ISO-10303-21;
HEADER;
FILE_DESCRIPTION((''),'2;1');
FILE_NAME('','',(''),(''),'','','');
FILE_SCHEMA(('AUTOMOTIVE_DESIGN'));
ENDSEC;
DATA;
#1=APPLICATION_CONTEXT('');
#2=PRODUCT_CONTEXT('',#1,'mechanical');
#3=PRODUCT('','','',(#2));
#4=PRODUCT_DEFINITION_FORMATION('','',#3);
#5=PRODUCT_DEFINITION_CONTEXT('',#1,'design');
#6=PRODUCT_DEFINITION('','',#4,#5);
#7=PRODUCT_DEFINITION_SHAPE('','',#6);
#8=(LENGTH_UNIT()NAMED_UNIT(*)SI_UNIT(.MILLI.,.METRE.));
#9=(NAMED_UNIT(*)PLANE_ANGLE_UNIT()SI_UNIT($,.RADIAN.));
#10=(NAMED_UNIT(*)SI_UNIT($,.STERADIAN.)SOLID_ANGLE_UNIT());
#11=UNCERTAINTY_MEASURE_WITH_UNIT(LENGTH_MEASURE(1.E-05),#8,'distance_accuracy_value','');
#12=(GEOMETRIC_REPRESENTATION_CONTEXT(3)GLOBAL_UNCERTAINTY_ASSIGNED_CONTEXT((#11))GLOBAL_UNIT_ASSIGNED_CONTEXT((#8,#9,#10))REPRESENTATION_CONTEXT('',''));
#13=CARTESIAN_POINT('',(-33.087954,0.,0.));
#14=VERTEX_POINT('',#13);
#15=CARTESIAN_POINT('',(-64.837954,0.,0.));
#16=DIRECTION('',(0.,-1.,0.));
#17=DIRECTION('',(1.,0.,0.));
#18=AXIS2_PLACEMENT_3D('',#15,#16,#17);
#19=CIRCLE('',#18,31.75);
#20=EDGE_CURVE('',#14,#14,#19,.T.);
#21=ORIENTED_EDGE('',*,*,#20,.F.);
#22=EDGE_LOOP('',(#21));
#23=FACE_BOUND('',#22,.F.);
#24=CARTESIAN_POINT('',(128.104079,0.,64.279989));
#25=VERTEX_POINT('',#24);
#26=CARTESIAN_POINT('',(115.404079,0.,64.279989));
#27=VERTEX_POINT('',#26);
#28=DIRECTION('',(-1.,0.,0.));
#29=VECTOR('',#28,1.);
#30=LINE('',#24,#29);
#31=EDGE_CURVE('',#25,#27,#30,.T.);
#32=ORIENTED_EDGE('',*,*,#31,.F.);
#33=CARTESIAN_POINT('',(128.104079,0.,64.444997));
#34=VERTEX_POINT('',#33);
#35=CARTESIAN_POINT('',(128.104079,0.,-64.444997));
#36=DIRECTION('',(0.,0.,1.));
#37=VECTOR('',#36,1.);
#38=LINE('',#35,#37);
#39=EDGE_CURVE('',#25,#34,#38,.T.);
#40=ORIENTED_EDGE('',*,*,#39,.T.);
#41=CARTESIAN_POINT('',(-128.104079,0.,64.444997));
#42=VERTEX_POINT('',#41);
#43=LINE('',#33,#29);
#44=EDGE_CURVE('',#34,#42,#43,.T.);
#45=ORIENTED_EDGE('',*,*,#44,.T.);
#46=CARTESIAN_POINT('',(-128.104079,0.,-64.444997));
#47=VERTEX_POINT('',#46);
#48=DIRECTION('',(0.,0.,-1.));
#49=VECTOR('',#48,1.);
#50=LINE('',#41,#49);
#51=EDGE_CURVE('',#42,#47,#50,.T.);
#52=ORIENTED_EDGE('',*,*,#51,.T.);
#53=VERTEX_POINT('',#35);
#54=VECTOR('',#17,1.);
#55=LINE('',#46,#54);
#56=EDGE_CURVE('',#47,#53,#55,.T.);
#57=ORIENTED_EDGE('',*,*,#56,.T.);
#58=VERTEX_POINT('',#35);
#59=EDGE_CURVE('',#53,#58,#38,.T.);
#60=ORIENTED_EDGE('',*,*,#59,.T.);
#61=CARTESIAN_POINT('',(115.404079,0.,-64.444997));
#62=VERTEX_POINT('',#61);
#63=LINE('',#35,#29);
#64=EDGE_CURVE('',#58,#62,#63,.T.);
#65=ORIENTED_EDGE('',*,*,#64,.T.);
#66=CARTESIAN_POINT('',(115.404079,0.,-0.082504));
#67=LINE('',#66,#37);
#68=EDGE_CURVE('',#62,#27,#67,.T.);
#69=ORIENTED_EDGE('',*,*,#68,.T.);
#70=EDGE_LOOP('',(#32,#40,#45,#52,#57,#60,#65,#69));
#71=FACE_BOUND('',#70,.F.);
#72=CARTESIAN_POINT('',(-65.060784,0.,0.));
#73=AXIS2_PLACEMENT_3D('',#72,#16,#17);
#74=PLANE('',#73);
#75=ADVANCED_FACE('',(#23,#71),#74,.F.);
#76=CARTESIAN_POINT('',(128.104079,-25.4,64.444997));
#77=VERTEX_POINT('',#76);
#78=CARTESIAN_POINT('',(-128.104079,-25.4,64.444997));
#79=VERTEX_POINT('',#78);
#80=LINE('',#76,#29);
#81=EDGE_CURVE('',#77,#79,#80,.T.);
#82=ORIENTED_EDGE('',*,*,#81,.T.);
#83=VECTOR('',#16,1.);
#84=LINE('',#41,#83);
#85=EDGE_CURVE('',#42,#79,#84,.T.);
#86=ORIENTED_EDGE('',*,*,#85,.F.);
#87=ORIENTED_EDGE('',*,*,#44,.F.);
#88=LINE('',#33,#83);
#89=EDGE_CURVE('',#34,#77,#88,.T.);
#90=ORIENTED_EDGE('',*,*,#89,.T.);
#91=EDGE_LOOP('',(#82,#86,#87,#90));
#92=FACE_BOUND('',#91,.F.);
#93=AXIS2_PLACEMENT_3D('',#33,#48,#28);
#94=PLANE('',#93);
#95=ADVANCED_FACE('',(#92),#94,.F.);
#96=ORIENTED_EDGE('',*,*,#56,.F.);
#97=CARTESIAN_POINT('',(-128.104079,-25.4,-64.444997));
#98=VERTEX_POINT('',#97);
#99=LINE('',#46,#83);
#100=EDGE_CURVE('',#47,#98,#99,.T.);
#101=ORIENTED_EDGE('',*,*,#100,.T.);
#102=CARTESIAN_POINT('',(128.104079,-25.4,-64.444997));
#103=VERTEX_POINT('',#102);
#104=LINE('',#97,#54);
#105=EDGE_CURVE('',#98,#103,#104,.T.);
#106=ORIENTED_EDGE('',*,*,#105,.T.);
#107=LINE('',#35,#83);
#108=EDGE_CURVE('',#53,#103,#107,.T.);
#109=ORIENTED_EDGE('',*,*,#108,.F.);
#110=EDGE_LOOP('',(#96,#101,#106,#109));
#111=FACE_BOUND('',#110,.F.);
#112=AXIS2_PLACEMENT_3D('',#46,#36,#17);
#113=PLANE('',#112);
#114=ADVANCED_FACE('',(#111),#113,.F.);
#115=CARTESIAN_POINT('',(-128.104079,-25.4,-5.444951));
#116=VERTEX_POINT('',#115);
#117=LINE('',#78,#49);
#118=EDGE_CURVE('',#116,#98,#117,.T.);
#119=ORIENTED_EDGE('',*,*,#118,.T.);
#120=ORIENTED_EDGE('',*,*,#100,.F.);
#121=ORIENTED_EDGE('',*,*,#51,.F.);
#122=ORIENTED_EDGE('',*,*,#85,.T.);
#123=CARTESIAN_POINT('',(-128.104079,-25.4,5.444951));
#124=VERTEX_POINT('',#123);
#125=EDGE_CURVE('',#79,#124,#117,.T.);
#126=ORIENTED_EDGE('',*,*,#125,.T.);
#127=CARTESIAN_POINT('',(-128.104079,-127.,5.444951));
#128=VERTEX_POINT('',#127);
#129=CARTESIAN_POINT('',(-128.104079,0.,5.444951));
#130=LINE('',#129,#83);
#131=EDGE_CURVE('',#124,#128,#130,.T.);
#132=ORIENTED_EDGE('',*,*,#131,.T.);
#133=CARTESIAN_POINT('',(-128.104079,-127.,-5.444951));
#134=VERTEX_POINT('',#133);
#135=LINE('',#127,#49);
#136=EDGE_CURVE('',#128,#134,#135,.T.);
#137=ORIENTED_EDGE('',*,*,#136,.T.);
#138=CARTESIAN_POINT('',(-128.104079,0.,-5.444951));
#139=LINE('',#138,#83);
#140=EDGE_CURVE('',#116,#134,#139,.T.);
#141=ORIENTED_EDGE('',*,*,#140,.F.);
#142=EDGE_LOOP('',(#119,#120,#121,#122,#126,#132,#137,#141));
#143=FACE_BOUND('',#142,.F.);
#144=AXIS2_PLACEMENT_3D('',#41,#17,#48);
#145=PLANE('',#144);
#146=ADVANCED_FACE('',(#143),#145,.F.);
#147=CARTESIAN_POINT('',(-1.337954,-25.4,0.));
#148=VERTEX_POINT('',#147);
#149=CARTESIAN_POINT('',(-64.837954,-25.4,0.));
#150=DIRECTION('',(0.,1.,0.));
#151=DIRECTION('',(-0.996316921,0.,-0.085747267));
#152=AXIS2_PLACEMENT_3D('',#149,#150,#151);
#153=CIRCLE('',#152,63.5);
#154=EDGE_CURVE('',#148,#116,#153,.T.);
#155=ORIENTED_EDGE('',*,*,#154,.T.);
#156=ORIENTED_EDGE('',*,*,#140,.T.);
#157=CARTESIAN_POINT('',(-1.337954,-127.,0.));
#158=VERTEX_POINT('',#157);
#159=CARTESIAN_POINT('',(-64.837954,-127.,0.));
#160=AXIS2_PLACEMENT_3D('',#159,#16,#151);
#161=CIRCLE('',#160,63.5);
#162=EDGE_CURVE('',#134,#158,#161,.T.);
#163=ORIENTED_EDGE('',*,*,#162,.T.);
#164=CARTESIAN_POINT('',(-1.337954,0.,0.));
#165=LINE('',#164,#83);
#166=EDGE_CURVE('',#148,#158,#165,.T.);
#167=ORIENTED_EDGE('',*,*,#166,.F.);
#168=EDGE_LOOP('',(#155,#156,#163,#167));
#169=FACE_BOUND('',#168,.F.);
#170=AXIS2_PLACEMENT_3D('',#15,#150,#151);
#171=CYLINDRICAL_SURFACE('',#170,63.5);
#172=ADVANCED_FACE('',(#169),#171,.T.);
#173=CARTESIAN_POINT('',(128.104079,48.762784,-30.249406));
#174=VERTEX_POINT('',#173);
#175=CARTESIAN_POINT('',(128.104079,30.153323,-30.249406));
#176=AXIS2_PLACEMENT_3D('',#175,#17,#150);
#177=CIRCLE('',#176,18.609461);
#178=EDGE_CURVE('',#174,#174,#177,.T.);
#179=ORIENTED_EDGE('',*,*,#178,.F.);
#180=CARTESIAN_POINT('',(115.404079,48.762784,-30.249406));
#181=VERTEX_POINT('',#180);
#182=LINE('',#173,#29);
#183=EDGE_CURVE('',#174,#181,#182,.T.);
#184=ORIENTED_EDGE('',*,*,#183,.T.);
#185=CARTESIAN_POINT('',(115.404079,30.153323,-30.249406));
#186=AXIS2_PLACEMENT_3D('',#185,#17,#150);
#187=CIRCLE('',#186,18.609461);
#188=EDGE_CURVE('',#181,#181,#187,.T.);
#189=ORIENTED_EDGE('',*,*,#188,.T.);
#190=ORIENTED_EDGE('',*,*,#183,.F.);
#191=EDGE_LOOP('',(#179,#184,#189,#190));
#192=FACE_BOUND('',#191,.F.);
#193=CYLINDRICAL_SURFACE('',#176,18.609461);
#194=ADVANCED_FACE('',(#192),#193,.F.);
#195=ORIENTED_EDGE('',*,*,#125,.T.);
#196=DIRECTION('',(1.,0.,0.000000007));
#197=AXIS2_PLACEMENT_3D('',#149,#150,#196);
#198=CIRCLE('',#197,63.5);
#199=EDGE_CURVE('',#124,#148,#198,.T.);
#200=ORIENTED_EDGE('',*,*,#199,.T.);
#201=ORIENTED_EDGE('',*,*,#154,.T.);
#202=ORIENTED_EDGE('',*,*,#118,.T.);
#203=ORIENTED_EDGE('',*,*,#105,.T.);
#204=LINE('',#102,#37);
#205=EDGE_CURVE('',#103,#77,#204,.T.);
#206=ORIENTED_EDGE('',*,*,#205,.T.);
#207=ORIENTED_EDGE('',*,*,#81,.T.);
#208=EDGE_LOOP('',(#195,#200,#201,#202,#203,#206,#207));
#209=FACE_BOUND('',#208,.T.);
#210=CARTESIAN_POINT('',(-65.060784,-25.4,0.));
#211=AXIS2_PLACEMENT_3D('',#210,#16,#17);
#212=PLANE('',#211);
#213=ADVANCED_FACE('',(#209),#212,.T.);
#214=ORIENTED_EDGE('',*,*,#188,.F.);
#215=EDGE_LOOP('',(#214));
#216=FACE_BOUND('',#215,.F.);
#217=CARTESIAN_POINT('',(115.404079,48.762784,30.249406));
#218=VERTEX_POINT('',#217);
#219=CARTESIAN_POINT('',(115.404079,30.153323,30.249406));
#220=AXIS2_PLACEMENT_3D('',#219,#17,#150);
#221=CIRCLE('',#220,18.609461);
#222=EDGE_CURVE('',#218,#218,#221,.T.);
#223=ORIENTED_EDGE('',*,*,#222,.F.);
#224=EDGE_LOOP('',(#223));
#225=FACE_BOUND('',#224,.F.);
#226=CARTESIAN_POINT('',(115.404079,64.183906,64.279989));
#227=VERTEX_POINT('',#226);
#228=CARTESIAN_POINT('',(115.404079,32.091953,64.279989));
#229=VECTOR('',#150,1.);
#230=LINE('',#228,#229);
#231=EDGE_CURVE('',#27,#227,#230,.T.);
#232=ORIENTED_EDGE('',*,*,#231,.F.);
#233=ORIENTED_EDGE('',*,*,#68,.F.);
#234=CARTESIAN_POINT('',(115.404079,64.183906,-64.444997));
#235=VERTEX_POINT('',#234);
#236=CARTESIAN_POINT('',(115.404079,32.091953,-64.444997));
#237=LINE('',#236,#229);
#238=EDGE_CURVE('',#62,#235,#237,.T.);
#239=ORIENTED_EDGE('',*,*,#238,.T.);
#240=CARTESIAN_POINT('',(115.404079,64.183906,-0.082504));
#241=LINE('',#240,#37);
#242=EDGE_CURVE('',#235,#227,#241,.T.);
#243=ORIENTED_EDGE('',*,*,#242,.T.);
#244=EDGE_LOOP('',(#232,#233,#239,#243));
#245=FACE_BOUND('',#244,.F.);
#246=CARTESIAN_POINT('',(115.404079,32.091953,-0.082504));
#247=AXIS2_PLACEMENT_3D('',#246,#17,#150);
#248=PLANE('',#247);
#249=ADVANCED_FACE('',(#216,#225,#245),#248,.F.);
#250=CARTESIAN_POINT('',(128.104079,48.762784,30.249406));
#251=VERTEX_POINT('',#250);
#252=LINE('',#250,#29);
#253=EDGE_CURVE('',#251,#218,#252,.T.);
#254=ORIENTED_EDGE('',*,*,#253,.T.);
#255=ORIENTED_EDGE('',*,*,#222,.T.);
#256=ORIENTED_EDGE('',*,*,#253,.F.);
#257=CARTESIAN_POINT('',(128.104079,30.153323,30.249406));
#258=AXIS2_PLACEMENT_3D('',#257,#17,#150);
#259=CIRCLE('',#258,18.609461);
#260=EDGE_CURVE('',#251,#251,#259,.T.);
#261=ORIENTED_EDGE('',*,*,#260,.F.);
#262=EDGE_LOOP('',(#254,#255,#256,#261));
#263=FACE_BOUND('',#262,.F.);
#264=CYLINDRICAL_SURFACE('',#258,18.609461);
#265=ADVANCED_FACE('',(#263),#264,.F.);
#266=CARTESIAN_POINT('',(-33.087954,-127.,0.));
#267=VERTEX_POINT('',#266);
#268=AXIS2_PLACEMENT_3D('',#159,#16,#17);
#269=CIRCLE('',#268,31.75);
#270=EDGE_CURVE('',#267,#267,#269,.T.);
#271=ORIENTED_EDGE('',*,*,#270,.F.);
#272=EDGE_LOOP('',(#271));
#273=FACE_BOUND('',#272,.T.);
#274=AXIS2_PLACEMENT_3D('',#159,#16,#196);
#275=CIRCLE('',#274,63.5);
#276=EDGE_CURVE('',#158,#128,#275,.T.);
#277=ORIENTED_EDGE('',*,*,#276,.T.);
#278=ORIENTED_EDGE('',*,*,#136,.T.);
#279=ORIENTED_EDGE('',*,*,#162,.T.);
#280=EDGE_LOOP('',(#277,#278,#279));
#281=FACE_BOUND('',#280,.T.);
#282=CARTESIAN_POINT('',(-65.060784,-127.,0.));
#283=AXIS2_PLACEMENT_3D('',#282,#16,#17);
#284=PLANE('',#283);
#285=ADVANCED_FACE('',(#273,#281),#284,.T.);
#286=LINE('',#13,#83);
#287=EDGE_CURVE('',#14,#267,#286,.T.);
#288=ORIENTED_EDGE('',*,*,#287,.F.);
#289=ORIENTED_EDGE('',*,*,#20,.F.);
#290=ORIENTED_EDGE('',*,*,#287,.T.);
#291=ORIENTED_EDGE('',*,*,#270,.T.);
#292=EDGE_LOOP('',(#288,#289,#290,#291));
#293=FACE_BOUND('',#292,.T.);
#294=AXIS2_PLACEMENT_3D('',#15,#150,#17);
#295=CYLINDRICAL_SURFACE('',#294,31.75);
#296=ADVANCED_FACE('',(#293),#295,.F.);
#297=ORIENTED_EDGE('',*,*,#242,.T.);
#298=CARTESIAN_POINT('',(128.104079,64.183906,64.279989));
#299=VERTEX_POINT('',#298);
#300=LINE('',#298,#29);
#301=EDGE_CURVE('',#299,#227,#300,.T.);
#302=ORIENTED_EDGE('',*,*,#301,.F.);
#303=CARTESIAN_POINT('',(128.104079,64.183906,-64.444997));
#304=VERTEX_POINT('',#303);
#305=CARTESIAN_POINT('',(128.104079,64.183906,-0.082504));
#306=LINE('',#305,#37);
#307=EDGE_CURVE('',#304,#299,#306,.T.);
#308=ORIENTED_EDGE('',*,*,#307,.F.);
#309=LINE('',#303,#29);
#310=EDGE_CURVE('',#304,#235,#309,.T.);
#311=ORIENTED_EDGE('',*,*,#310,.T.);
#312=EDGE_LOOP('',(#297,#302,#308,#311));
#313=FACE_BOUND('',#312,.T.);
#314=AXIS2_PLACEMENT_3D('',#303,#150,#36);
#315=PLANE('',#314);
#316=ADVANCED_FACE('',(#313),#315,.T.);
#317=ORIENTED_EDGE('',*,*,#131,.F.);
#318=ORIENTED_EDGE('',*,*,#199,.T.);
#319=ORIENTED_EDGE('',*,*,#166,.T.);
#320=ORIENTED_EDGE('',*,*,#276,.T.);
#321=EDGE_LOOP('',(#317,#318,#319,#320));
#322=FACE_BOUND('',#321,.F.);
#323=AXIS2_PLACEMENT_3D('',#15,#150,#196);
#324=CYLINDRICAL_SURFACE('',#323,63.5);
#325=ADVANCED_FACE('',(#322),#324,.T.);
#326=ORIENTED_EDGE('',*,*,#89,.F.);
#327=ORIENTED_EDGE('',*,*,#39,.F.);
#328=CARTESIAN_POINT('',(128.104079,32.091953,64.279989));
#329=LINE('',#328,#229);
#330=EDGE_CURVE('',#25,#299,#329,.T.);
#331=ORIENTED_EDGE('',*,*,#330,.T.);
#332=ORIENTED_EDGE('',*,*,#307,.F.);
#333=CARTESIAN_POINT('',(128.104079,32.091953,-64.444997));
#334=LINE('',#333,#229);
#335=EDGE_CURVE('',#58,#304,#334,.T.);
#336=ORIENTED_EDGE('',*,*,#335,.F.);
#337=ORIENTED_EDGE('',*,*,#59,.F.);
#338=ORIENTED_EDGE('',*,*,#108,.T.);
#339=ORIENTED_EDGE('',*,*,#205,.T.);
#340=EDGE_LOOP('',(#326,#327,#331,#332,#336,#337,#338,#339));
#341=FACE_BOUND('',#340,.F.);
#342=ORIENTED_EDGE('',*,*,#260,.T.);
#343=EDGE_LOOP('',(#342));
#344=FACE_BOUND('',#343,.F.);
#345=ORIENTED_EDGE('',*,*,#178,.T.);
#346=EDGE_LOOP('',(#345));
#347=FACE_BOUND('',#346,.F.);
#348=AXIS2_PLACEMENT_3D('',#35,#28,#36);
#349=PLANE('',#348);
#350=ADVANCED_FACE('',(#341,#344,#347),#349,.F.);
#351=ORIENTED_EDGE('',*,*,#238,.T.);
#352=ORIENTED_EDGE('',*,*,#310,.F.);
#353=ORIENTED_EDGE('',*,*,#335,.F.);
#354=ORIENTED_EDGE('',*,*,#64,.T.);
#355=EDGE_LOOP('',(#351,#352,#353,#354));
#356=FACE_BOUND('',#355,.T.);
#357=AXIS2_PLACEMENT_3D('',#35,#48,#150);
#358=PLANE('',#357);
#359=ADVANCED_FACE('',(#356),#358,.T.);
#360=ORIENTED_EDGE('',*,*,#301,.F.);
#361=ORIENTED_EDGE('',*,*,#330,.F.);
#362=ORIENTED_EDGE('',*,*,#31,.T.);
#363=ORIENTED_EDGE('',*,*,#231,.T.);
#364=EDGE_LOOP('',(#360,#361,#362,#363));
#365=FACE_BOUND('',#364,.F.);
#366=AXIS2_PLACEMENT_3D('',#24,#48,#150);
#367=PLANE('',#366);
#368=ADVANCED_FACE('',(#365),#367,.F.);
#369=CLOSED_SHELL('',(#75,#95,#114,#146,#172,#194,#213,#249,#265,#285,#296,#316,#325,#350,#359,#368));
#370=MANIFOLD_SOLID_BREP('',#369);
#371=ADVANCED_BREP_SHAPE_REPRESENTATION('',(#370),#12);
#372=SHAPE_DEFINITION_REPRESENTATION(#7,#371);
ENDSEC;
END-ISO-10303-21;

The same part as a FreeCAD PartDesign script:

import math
import FreeCAD as App
import Part
import Sketcher
Q = App.Units.Quantity

doc = App.newDocument("Part")
body = doc.addObject("PartDesign::Body", "Body")

sketch1 = doc.addObject("Sketcher::SketchObject", "Sketch")
body.addObject(sketch1)
sketch1.AttachmentSupport = (doc.XZ_Plane, [""])
sketch1.MapMode = "FlatFace"
sketch1.addGeometry([
    Part.LineSegment(App.Vector(-128, -64, 0), App.Vector(128, -64, 0)),
    Part.LineSegment(App.Vector(128, -64, 0), App.Vector(128, 64, 0)),
    Part.LineSegment(App.Vector(128, 64, 0), App.Vector(-128, 64, 0)),
    Part.LineSegment(App.Vector(-128, 64, 0), App.Vector(-128, -64, 0)),
    Part.Circle(App.Vector(-65, 0, 0), App.Vector(0, 0, 1), 32),
], False)
sketch1.addConstraint([
    Sketcher.Constraint("Coincident", 0, 2, 1, 1),
    Sketcher.Constraint("Coincident", 1, 2, 2, 1),
    Sketcher.Constraint("Coincident", 2, 2, 3, 1),
    Sketcher.Constraint("Coincident", 3, 2, 0, 1),
    Sketcher.Constraint("Horizontal", 0),
    Sketcher.Constraint("Vertical", 1),
    Sketcher.Constraint("Horizontal", 2),
    Sketcher.Constraint("Vertical", 3),
    Sketcher.Constraint("Symmetric", 0, 2, 2, 2, -1, 1),
    Sketcher.Constraint("PointOnObject", 4, 3, -1),
    Sketcher.Constraint("Diameter", 4, Q("2.5 in")),
    Sketcher.Constraint("DistanceX", 0, 1, 0, 2, 256.208158),
    Sketcher.Constraint("DistanceY", 1, 1, 1, 2, 128.889994),
    Sketcher.Constraint("DistanceX", 4, 3, -1, 1, 64.837954),
])
pad1 = doc.addObject("PartDesign::Pad", "Pad")
body.addObject(pad1)
pad1.Profile = sketch1
pad1.Length = Q("1 in")

sketch2 = doc.addObject("Sketcher::SketchObject", "Sketch001")
body.addObject(sketch2)
sketch2.AttachmentSupport = (doc.XZ_Plane, [""])
sketch2.MapMode = "FlatFace"
sketch2.addGeometry([
    Part.ArcOfCircle(Part.Circle(App.Vector(-65, 0, 0), App.Vector(0, 0, 1), 64), math.radians(0), math.radians(175)),
    Part.LineSegment(App.Vector(-128, 5, 0), App.Vector(-128, -5, 0)),
    Part.ArcOfCircle(Part.Circle(App.Vector(-65, 0, 0), App.Vector(0, 0, 1), 64), math.radians(-175), math.radians(0)),
    Part.Circle(App.Vector(-65, 0, 0), App.Vector(0, 0, 1), 32),
], False)
sketch2.addConstraint([
    Sketcher.Constraint("Coincident", 0, 2, 1, 1),
    Sketcher.Constraint("Coincident", 1, 2, 2, 1),
    Sketcher.Constraint("Tangent", 2, 2, 0, 1),
    Sketcher.Constraint("Vertical", 1),
    Sketcher.Constraint("Coincident", 3, 3, 0, 3),
    Sketcher.Constraint("Equal", 0, 2),
    Sketcher.Constraint("PointOnObject", 0, 3, -1),
    Sketcher.Constraint("PointOnObject", 2, 2, -1),
    Sketcher.Constraint("Diameter", 3, Q("2.5 in")),
    Sketcher.Constraint("Radius", 0, Q("2.5 in")),
    Sketcher.Constraint("DistanceY", 1, 2, 1, 1, 10.889902),
    Sketcher.Constraint("DistanceX", 0, 2, -1, 1, 128.104079),
])
pad2 = doc.addObject("PartDesign::Pad", "Pad001")
body.addObject(pad2)
pad2.Profile = sketch2
pad2.Length = Q("5 in")

sketch3 = doc.addObject("Sketcher::SketchObject", "Sketch002")
body.addObject(sketch3)
sketch3.AttachmentSupport = (doc.YZ_Plane, [""])
sketch3.MapMode = "FlatFace"
sketch3.AttachmentOffset = App.Placement(App.Vector(0, 0, 128.104079), App.Rotation())
sketch3.addGeometry([
    Part.LineSegment(App.Vector(0, 64, 0), App.Vector(0, -64, 0)),
    Part.LineSegment(App.Vector(0, -64, 0), App.Vector(64, -64, 0)),
    Part.LineSegment(App.Vector(64, -64, 0), App.Vector(64, 64, 0)),
    Part.LineSegment(App.Vector(64, 64, 0), App.Vector(0, 64, 0)),
    Part.Circle(App.Vector(30, -30, 0), App.Vector(0, 0, 1), 19),
    Part.Circle(App.Vector(30, 30, 0), App.Vector(0, 0, 1), 19),
], False)
sketch3.addConstraint([
    Sketcher.Constraint("Coincident", 0, 2, 1, 1),
    Sketcher.Constraint("Coincident", 1, 2, 2, 1),
    Sketcher.Constraint("Coincident", 2, 2, 3, 1),
    Sketcher.Constraint("Coincident", 3, 2, 0, 1),
    Sketcher.Constraint("Vertical", 0),
    Sketcher.Constraint("Horizontal", 1),
    Sketcher.Constraint("Vertical", 2),
    Sketcher.Constraint("Horizontal", 3),
    Sketcher.Constraint("Equal", 4, 5),
    Sketcher.Constraint("Symmetric", 4, 3, 5, 3, -1),
    Sketcher.Constraint("PointOnObject", 0, 2, -2),
    Sketcher.Constraint("Diameter", 4, 37.218922),
    Sketcher.Constraint("DistanceX", 1, 1, 1, 2, 64.183906),
    Sketcher.Constraint("DistanceY", 0, 2, 0, 1, 128.724985),
    Sketcher.Constraint("DistanceY", -1, 1, 2, 2, 64.279989),
    Sketcher.Constraint("DistanceY", 0, 2, 4, 3, 34.195591),
    Sketcher.Constraint("DistanceX", -1, 1, 4, 3, 30.153323),
])
pad3 = doc.addObject("PartDesign::Pad", "Pad002")
body.addObject(pad3)
pad3.Profile = sketch3
pad3.Length = Q("0.5 in")
pad3.Reversed = True

doc.recompute()
